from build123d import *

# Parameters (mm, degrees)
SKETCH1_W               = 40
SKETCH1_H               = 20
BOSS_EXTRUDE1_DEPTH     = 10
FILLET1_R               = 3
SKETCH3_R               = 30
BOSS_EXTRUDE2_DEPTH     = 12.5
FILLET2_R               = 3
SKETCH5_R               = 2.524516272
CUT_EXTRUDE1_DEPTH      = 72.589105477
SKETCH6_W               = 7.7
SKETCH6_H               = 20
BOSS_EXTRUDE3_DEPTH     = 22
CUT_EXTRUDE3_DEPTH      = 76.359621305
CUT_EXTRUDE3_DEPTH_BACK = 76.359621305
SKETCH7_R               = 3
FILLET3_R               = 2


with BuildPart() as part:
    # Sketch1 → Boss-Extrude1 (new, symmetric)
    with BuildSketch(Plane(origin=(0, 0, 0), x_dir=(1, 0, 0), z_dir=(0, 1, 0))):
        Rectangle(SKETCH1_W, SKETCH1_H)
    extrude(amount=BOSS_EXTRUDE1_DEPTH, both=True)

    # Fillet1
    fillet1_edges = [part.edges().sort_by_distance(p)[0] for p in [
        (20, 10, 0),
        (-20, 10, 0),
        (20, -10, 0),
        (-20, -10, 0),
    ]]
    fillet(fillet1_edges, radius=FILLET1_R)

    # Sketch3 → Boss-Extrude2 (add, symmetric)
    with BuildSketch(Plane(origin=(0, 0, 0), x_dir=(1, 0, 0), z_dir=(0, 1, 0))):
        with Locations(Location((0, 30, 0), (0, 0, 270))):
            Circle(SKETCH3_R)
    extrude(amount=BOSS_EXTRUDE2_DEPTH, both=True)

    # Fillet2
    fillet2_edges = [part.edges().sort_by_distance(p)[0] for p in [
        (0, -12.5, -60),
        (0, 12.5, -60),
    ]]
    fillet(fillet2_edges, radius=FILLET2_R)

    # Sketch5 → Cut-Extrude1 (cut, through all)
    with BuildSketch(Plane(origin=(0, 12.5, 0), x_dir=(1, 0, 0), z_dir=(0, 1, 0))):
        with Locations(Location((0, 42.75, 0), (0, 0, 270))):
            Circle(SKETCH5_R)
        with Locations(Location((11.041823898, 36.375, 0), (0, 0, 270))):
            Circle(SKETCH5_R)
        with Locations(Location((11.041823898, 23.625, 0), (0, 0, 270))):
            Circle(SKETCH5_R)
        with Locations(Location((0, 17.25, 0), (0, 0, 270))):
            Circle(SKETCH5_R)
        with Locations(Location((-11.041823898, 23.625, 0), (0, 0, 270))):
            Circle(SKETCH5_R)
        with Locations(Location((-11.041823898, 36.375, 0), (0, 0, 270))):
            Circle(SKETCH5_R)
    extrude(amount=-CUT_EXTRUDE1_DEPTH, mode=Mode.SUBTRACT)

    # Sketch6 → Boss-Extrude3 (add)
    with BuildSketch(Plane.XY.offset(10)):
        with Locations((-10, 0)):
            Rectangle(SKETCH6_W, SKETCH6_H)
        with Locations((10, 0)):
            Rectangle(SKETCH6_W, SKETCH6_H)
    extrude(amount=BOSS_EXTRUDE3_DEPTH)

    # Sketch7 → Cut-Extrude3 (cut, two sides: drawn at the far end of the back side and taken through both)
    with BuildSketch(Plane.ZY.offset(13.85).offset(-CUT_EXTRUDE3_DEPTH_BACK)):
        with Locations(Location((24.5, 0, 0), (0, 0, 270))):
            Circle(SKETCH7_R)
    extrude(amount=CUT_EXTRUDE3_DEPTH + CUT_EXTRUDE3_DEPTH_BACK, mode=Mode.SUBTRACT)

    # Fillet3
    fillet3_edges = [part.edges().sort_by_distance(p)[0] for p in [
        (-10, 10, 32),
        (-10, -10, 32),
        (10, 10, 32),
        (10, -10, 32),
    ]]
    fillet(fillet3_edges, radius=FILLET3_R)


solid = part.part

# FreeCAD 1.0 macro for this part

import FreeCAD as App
import Part
import Sketcher
Q = App.Units.Quantity


def edges_at(feature, points):
    """Names of the edges that pass closest to the given points."""
    edges = feature.Shape.Edges
    near = lambda p: min(range(len(edges)), key=lambda i: edges[i].distToShape(Part.Vertex(*p))[0])
    return sorted({f"Edge{near(p) + 1}" for p in points})

doc = App.newDocument("Part")
body = doc.addObject("PartDesign::Body", "Body")

sketch1 = body.newObject("Sketcher::SketchObject", "Sketch")
sketch1.AttachmentSupport = (doc.getObject("XZ_Plane"), [""])
sketch1.MapMode = "FlatFace"
sketch1.addGeometry([
    Part.LineSegment(App.Vector(-20, -10, 0), App.Vector(-20, 10, 0)),
    Part.LineSegment(App.Vector(-20, 10, 0), App.Vector(20, 10, 0)),
    Part.LineSegment(App.Vector(20, 10, 0), App.Vector(20, -10, 0)),
    Part.LineSegment(App.Vector(20, -10, 0), App.Vector(-20, -10, 0)),
], False)
sketch1.addConstraint([
    Sketcher.Constraint("Coincident", 0, 2, 1, 1),
    Sketcher.Constraint("Coincident", 1, 2, 2, 1),
    Sketcher.Constraint("Coincident", 2, 2, 3, 1),
    Sketcher.Constraint("Coincident", 3, 2, 0, 1),
    Sketcher.Constraint("Vertical", 0),
    Sketcher.Constraint("Horizontal", 1),
    Sketcher.Constraint("Vertical", 2),
    Sketcher.Constraint("Horizontal", 3),
    Sketcher.Constraint("Symmetric", 0, 2, 2, 2, -1, 1),
    Sketcher.Constraint("DistanceX", 1, 1, 1, 2, Q("40 mm")),
    Sketcher.Constraint("DistanceY", 0, 1, 0, 2, Q("20 mm")),
])
pad1 = body.newObject("PartDesign::Pad", "Pad")
pad1.Profile = sketch1
pad1.Length = 20
pad1.Midplane = True
doc.recompute()

fillet = body.newObject("PartDesign::Fillet", "Fillet")
fillet.Base = (pad1, edges_at(pad1, [
    (20, 10, 0),
    (-20, 10, 0),
    (20, -10, 0),
    (-20, -10, 0),
]))
fillet.Radius = 3

sketch2 = body.newObject("Sketcher::SketchObject", "Sketch001")
sketch2.AttachmentSupport = (doc.getObject("XZ_Plane"), [""])
sketch2.MapMode = "FlatFace"
sketch2.addGeometry(Part.Circle(App.Vector(0, -30, 0), App.Vector(0, 0, 1), 30), False)
sketch2.addConstraint([
    Sketcher.Constraint("PointOnObject", 0, 3, -2),
    Sketcher.Constraint("Diameter", 0, Q("60 mm")),
    Sketcher.Constraint("DistanceY", 0, 3, -1, 1, Q("30 mm")),
])
pad2 = body.newObject("PartDesign::Pad", "Pad001")
pad2.Profile = sketch2
pad2.Length = 25
pad2.Midplane = True
doc.recompute()

fillet2 = body.newObject("PartDesign::Fillet", "Fillet001")
fillet2.Base = (pad2, edges_at(pad2, [(0, -12.5, -60), (0, 12.5, -60)]))
fillet2.Radius = 3

sketch3 = body.newObject("Sketcher::SketchObject", "Sketch002")
sketch3.AttachmentSupport = (doc.getObject("XZ_Plane"), [""])
sketch3.MapMode = "FlatFace"
sketch3.AttachmentOffset = App.Placement(App.Vector(0, 0, -12.5), App.Rotation())
sketch3.addGeometry([
    Part.Circle(App.Vector(0, -42.8, 0), App.Vector(0, 0, 1), 2.5),
    Part.Circle(App.Vector(11, -36.4, 0), App.Vector(0, 0, 1), 2.5),
    Part.Circle(App.Vector(11, -23.6, 0), App.Vector(0, 0, 1), 2.5),
    Part.Circle(App.Vector(0, -17.2, 0), App.Vector(0, 0, 1), 2.5),
    Part.Circle(App.Vector(-11, -23.6, 0), App.Vector(0, 0, 1), 2.5),
    Part.Circle(App.Vector(-11, -36.4, 0), App.Vector(0, 0, 1), 2.5),
], False)
sketch3.addConstraint([
    Sketcher.Constraint("Equal", 0, 1),
    Sketcher.Constraint("Equal", 1, 2),
    Sketcher.Constraint("Equal", 2, 3),
    Sketcher.Constraint("Equal", 3, 4),
    Sketcher.Constraint("Equal", 4, 5),
    Sketcher.Constraint("Symmetric", 2, 3, 4, 3, -2),
    Sketcher.Constraint("Symmetric", 1, 3, 5, 3, -2),
    Sketcher.Constraint("PointOnObject", 0, 3, -2),
    Sketcher.Constraint("PointOnObject", 3, 3, -2),
    Sketcher.Constraint("Vertical", 1, 3, 2, 3),
    Sketcher.Constraint("DistanceY", 0, 3, 3, 3, Q("25.5 mm")),
    Sketcher.Constraint("DistanceY", 0, 3, -1, 1, Q("42.75 mm")),
    Sketcher.Constraint("DistanceY", 1, 3, 2, 3, Q("12.75 mm")),
    Sketcher.Constraint("Diameter", 0, Q("5.049033 mm")),
    Sketcher.Constraint("DistanceY", 1, 3, -1, 1, Q("36.375 mm")),
    Sketcher.Constraint("DistanceX", -1, 1, 1, 3, Q("11.041824 mm")),
])
pocket1 = body.newObject("PartDesign::Pocket", "Pocket")
pocket1.Profile = sketch3
pocket1.Type = "ThroughAll"
pocket1.Reversed = True

sketch4 = body.newObject("Sketcher::SketchObject", "Sketch003")
sketch4.AttachmentSupport = (doc.getObject("XY_Plane"), [""])
sketch4.MapMode = "FlatFace"
sketch4.AttachmentOffset = App.Placement(App.Vector(0, 0, 10), App.Rotation())
sketch4.addGeometry([
    Part.LineSegment(App.Vector(-14, 10, 0), App.Vector(-14, -10, 0)),
    Part.LineSegment(App.Vector(-14, -10, 0), App.Vector(-6, -10, 0)),
    Part.LineSegment(App.Vector(-6, -10, 0), App.Vector(-6, 10, 0)),
    Part.LineSegment(App.Vector(-6, 10, 0), App.Vector(-14, 10, 0)),
    Part.LineSegment(App.Vector(6, 10, 0), App.Vector(6, -10, 0)),
    Part.LineSegment(App.Vector(6, -10, 0), App.Vector(14, -10, 0)),
    Part.LineSegment(App.Vector(14, -10, 0), App.Vector(14, 10, 0)),
    Part.LineSegment(App.Vector(14, 10, 0), App.Vector(6, 10, 0)),
], False)
sketch4.addConstraint([
    Sketcher.Constraint("Coincident", 0, 2, 1, 1),
    Sketcher.Constraint("Coincident", 1, 2, 2, 1),
    Sketcher.Constraint("Coincident", 2, 2, 3, 1),
    Sketcher.Constraint("Coincident", 3, 2, 0, 1),
    Sketcher.Constraint("Coincident", 4, 2, 5, 1),
    Sketcher.Constraint("Coincident", 5, 2, 6, 1),
    Sketcher.Constraint("Coincident", 6, 2, 7, 1),
    Sketcher.Constraint("Coincident", 7, 2, 4, 1),
    Sketcher.Constraint("Vertical", 0),
    Sketcher.Constraint("Horizontal", 1),
    Sketcher.Constraint("Vertical", 2),
    Sketcher.Constraint("Horizontal", 3),
    Sketcher.Constraint("Vertical", 4),
    Sketcher.Constraint("Horizontal", 5),
    Sketcher.Constraint("Vertical", 6),
    Sketcher.Constraint("Horizontal", 7),
    Sketcher.Constraint("Symmetric", 2, 2, 4, 2, -1, 1),
    Sketcher.Constraint("Symmetric", 0, 2, 6, 2, -1, 1),
    Sketcher.Constraint("Horizontal", 1, 2, 4, 2),
    Sketcher.Constraint("DistanceY", 0, 2, 0, 1, Q("20 mm")),
    Sketcher.Constraint("DistanceX", 1, 1, 1, 2, Q("7.7 mm")),
    Sketcher.Constraint("DistanceX", 0, 2, 4, 2, Q("20 mm")),
])
pad3 = body.newObject("PartDesign::Pad", "Pad002")
pad3.Profile = sketch4
pad3.Length = 22

sketch5 = body.newObject("Sketcher::SketchObject", "Sketch004")
sketch5.AttachmentSupport = (doc.getObject("YZ_Plane"), [""])
sketch5.MapMode = "FlatFace"
sketch5.AttachmentOffset = App.Placement(App.Vector(0, 0, -13.85), App.Rotation())
sketch5.addGeometry(Part.Circle(App.Vector(0, 24.5, 0), App.Vector(0, 0, 1), 3), False)
sketch5.addConstraint([
    Sketcher.Constraint("PointOnObject", 0, 3, -2),
    Sketcher.Constraint("Diameter", 0, Q("6 mm")),
    Sketcher.Constraint("DistanceY", -1, 1, 0, 3, Q("24.5 mm")),
])
pocket2 = body.newObject("PartDesign::Pocket", "Pocket001")
pocket2.Profile = sketch5
pocket2.Type = "ThroughAll"
pocket2.Midplane = True
doc.recompute()

fillet3 = body.newObject("PartDesign::Fillet", "Fillet002")
fillet3.Base = (pocket2, edges_at(pocket2, [
    (-10, 10, 32),
    (-10, -10, 32),
    (10, 10, 32),
    (10, -10, 32),
]))
fillet3.Radius = 2

doc.recompute()
